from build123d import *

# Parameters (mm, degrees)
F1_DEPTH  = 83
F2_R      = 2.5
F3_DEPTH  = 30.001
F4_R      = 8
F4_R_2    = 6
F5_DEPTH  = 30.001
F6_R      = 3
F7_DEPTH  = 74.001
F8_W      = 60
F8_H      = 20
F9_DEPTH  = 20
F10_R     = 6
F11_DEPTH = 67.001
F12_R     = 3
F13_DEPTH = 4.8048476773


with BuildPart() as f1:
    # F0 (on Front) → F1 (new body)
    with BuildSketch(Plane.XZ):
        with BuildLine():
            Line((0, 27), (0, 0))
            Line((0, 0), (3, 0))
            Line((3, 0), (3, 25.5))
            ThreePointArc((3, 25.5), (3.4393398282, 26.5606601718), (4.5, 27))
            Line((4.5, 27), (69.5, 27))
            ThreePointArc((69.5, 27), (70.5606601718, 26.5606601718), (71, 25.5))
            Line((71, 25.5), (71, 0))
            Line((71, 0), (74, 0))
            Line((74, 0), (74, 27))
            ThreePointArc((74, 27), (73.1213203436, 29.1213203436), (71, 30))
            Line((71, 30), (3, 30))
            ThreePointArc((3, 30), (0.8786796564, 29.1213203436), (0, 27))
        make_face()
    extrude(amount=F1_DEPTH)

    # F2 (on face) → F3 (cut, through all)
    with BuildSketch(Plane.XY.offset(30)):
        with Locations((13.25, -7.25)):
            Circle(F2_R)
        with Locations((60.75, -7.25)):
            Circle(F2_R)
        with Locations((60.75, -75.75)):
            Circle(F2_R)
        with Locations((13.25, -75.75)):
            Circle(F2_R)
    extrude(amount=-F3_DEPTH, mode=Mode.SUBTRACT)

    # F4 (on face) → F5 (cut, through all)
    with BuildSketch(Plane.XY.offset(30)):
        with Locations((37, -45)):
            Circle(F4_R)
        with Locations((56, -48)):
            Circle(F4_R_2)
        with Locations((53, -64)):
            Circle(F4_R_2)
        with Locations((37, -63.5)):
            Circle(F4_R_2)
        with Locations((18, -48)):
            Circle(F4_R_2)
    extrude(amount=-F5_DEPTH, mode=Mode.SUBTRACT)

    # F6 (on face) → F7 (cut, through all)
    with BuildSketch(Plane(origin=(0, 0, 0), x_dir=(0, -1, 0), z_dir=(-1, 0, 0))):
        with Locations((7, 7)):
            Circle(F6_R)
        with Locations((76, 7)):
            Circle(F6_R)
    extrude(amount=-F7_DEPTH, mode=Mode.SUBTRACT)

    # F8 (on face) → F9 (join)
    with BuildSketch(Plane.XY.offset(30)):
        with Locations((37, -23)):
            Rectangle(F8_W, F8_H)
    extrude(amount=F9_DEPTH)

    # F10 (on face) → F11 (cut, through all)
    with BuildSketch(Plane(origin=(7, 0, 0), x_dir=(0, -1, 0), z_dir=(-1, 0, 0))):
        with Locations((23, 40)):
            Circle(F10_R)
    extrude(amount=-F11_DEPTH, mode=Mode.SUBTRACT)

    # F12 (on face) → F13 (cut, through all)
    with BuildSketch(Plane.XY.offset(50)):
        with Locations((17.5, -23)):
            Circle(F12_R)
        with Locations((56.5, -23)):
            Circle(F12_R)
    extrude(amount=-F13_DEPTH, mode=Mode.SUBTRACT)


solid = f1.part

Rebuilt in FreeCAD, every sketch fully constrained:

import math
import FreeCAD as App
import Part
import Sketcher

doc = App.newDocument("Part")
body = doc.addObject("PartDesign::Body", "Body")

sketch1 = doc.addObject("Sketcher::SketchObject", "Sketch")
body.addObject(sketch1)
sketch1.AttachmentSupport = (doc.XZ_Plane, [""])
sketch1.MapMode = "FlatFace"
sketch1.addGeometry([
    Part.LineSegment(App.Vector(0, 27, 0), App.Vector(0, 0, 0)),
    Part.LineSegment(App.Vector(0, 0, 0), App.Vector(3, 0, 0)),
    Part.LineSegment(App.Vector(3, 0, 0), App.Vector(3, 25.5, 0)),
    Part.ArcOfCircle(Part.Circle(App.Vector(4.5, 25.5, 0), App.Vector(0, 0, 1), 1.5), math.radians(90), math.radians(180)),
    Part.LineSegment(App.Vector(4.5, 27, 0), App.Vector(69.5, 27, 0)),
    Part.ArcOfCircle(Part.Circle(App.Vector(69.5, 25.5, 0), App.Vector(0, 0, 1), 1.5), math.radians(0), math.radians(90)),
    Part.LineSegment(App.Vector(71, 25.5, 0), App.Vector(71, 0, 0)),
    Part.LineSegment(App.Vector(71, 0, 0), App.Vector(74, 0, 0)),
    Part.LineSegment(App.Vector(74, 0, 0), App.Vector(74, 27, 0)),
    Part.ArcOfCircle(Part.Circle(App.Vector(71, 27, 0), App.Vector(0, 0, 1), 3), math.radians(0), math.radians(90)),
    Part.LineSegment(App.Vector(71, 30, 0), App.Vector(3, 30, 0)),
    Part.ArcOfCircle(Part.Circle(App.Vector(3, 27, 0), App.Vector(0, 0, 1), 3), math.radians(90), math.radians(180)),
], False)
sketch1.addConstraint([
    Sketcher.Constraint("Coincident", 0, 2, 1, 1),
    Sketcher.Constraint("Coincident", 1, 2, 2, 1),
    Sketcher.Constraint("Tangent", 2, 2, 3, 2),
    Sketcher.Constraint("Tangent", 3, 1, 4, 1),
    Sketcher.Constraint("Tangent", 4, 2, 5, 2),
    Sketcher.Constraint("Tangent", 5, 1, 6, 1),
    Sketcher.Constraint("Coincident", 6, 2, 7, 1),
    Sketcher.Constraint("Coincident", 7, 2, 8, 1),
    Sketcher.Constraint("Tangent", 8, 2, 9, 1),
    Sketcher.Constraint("Tangent", 9, 2, 10, 1),
    Sketcher.Constraint("Tangent", 10, 2, 11, 1),
    Sketcher.Constraint("Tangent", 11, 2, 0, 1),
    Sketcher.Constraint("Vertical", 0),
    Sketcher.Constraint("Horizontal", 1),
    Sketcher.Constraint("Vertical", 2),
    Sketcher.Constraint("Horizontal", 4),
    Sketcher.Constraint("Vertical", 6),
    Sketcher.Constraint("Horizontal", 7),
    Sketcher.Constraint("Vertical", 8),
    Sketcher.Constraint("Horizontal", 10),
    Sketcher.Constraint("Coincident", 0, 2, -1, 1),
    Sketcher.Constraint("Equal", 3, 5),
    Sketcher.Constraint("Equal", 9, 11),
    Sketcher.Constraint("PointOnObject", 6, 2, -1),
    Sketcher.Constraint("Horizontal", 11, 3, 3, 1),
    Sketcher.Constraint("Vertical", 11, 3, 1, 2),
    Sketcher.Constraint("Vertical", 9, 3, 5, 1),
    Sketcher.Constraint("Radius", 9, 3.0),
    Sketcher.Constraint("Radius", 3, 1.5),
    Sketcher.Constraint("DistanceX", 4, 1, 4, 2, 65.0),
    Sketcher.Constraint("DistanceY", 0, 2, 0, 1, 27.0),
])
pad1 = doc.addObject("PartDesign::Pad", "Pad")
body.addObject(pad1)
pad1.Profile = sketch1
pad1.Length = 83

sketch2 = doc.addObject("Sketcher::SketchObject", "Sketch001")
body.addObject(sketch2)
sketch2.AttachmentSupport = (doc.XY_Plane, [""])
sketch2.MapMode = "FlatFace"
sketch2.AttachmentOffset = App.Placement(App.Vector(0, 0, 30), App.Rotation())
sketch2.addGeometry([
    Part.Circle(App.Vector(13.2, -7.2, 0), App.Vector(0, 0, 1), 2.5),
    Part.Circle(App.Vector(60.8, -7.2, 0), App.Vector(0, 0, 1), 2.5),
    Part.Circle(App.Vector(60.8, -75.8, 0), App.Vector(0, 0, 1), 2.5),
    Part.Circle(App.Vector(13.2, -75.8, 0), App.Vector(0, 0, 1), 2.5),
], False)
sketch2.addConstraint([
    Sketcher.Constraint("Equal", 0, 1),
    Sketcher.Constraint("Equal", 1, 2),
    Sketcher.Constraint("Equal", 2, 3),
    Sketcher.Constraint("Horizontal", 0, 3, 1, 3),
    Sketcher.Constraint("Horizontal", 2, 3, 3, 3),
    Sketcher.Constraint("Vertical", 1, 3, 2, 3),
    Sketcher.Constraint("Vertical", 0, 3, 3, 3),
    Sketcher.Constraint("Diameter", 0, 5.0),
    Sketcher.Constraint("DistanceX", 0, 3, 1, 3, 47.5),
    Sketcher.Constraint("DistanceY", 2, 3, 1, 3, 68.5),
    Sketcher.Constraint("DistanceX", -1, 1, 0, 3, 13.25),
    Sketcher.Constraint("DistanceY", 0, 3, -1, 1, 7.25),
])
pocket1 = doc.addObject("PartDesign::Pocket", "Pocket")
body.addObject(pocket1)
pocket1.Profile = sketch2
pocket1.Type = "ThroughAll"

sketch3 = doc.addObject("Sketcher::SketchObject", "Sketch002")
body.addObject(sketch3)
sketch3.AttachmentSupport = (doc.XY_Plane, [""])
sketch3.MapMode = "FlatFace"
sketch3.AttachmentOffset = App.Placement(App.Vector(0, 0, 30), App.Rotation())
sketch3.addGeometry([
    Part.Circle(App.Vector(37, -45, 0), App.Vector(0, 0, 1), 8),
    Part.Circle(App.Vector(56, -48, 0), App.Vector(0, 0, 1), 6),
    Part.Circle(App.Vector(53, -64, 0), App.Vector(0, 0, 1), 6),
    Part.Circle(App.Vector(37, -64, 0), App.Vector(0, 0, 1), 6),
    Part.Circle(App.Vector(18, -48, 0), App.Vector(0, 0, 1), 6),
], False)
sketch3.addConstraint([
    Sketcher.Constraint("Equal", 1, 2),
    Sketcher.Constraint("Equal", 2, 3),
    Sketcher.Constraint("Equal", 3, 4),
    Sketcher.Constraint("Horizontal", 1, 3, 4, 3),
    Sketcher.Constraint("Vertical", 0, 3, 3, 3),
    Sketcher.Constraint("Diameter", 0, 16.0),
    Sketcher.Constraint("Diameter", 1, 12.0),
    Sketcher.Constraint("DistanceX", -1, 1, 0, 3, 37.0),
    Sketcher.Constraint("DistanceY", 0, 3, -1, 1, 45.0),
    Sketcher.Constraint("DistanceX", -1, 1, 1, 3, 56.0),
    Sketcher.Constraint("DistanceY", 1, 3, -1, 1, 48.0),
    Sketcher.Constraint("DistanceX", -1, 1, 2, 3, 53.0),
    Sketcher.Constraint("DistanceY", 2, 3, -1, 1, 64.0),
    Sketcher.Constraint("DistanceX", -1, 1, 4, 3, 18.0),
    Sketcher.Constraint("DistanceY", 3, 3, -1, 1, 63.5),
])
pocket2 = doc.addObject("PartDesign::Pocket", "Pocket001")
body.addObject(pocket2)
pocket2.Profile = sketch3
pocket2.Type = "ThroughAll"

sketch4 = doc.addObject("Sketcher::SketchObject", "Sketch003")
body.addObject(sketch4)
sketch4.AttachmentSupport = (doc.YZ_Plane, [""])
sketch4.MapMode = "FlatFace"
sketch4.addGeometry([
    Part.Circle(App.Vector(-7, 7, 0), App.Vector(0, 0, 1), 3),
    Part.Circle(App.Vector(-76, 7, 0), App.Vector(0, 0, 1), 3),
], False)
sketch4.addConstraint([
    Sketcher.Constraint("Equal", 0, 1),
    Sketcher.Constraint("Horizontal", 0, 3, 1, 3),
    Sketcher.Constraint("Diameter", 0, 6.0),
    Sketcher.Constraint("DistanceX", 0, 3, -1, 1, 7.0),
    Sketcher.Constraint("DistanceY", -1, 1, 0, 3, 7.0),
    Sketcher.Constraint("DistanceX", 1, 3, -1, 1, 76.0),
])
pocket3 = doc.addObject("PartDesign::Pocket", "Pocket002")
body.addObject(pocket3)
pocket3.Profile = sketch4
pocket3.Type = "ThroughAll"
pocket3.Reversed = True

sketch5 = doc.addObject("Sketcher::SketchObject", "Sketch004")
body.addObject(sketch5)
sketch5.AttachmentSupport = (doc.XY_Plane, [""])
sketch5.MapMode = "FlatFace"
sketch5.AttachmentOffset = App.Placement(App.Vector(0, 0, 30), App.Rotation())
sketch5.addGeometry([
    Part.LineSegment(App.Vector(7, -13, 0), App.Vector(7, -33, 0)),
    Part.LineSegment(App.Vector(7, -33, 0), App.Vector(67, -33, 0)),
    Part.LineSegment(App.Vector(67, -33, 0), App.Vector(67, -13, 0)),
    Part.LineSegment(App.Vector(67, -13, 0), App.Vector(7, -13, 0)),
], False)
sketch5.addConstraint([
    Sketcher.Constraint("Coincident", 0, 2, 1, 1),
    Sketcher.Constraint("Coincident", 1, 2, 2, 1),
    Sketcher.Constraint("Coincident", 2, 2, 3, 1),
    Sketcher.Constraint("Coincident", 3, 2, 0, 1),
    Sketcher.Constraint("Vertical", 0),
    Sketcher.Constraint("Horizontal", 1),
    Sketcher.Constraint("Vertical", 2),
    Sketcher.Constraint("Horizontal", 3),
    Sketcher.Constraint("DistanceX", 1, 1, 1, 2, 60.0),
    Sketcher.Constraint("DistanceY", 0, 2, 0, 1, 20.0),
    Sketcher.Constraint("DistanceX", -1, 1, 0, 2, 7.0),
    Sketcher.Constraint("DistanceY", 0, 2, -1, 1, 33.0),
])
pad2 = doc.addObject("PartDesign::Pad", "Pad001")
body.addObject(pad2)
pad2.Profile = sketch5
pad2.Length = 20

sketch6 = doc.addObject("Sketcher::SketchObject", "Sketch005")
body.addObject(sketch6)
sketch6.AttachmentSupport = (doc.YZ_Plane, [""])
sketch6.MapMode = "FlatFace"
sketch6.AttachmentOffset = App.Placement(App.Vector(0, 0, 7), App.Rotation())
sketch6.addGeometry(Part.Circle(App.Vector(-23, 40, 0), App.Vector(0, 0, 1), 6), False)
sketch6.addConstraint([
    Sketcher.Constraint("Diameter", 0, 12.0),
    Sketcher.Constraint("DistanceX", 0, 3, -1, 1, 23.0),
    Sketcher.Constraint("DistanceY", -1, 1, 0, 3, 40.0),
])
pocket4 = doc.addObject("PartDesign::Pocket", "Pocket003")
body.addObject(pocket4)
pocket4.Profile = sketch6
pocket4.Type = "ThroughAll"
pocket4.Reversed = True

sketch7 = doc.addObject("Sketcher::SketchObject", "Sketch006")
body.addObject(sketch7)
sketch7.AttachmentSupport = (doc.XY_Plane, [""])
sketch7.MapMode = "FlatFace"
sketch7.AttachmentOffset = App.Placement(App.Vector(0, 0, 50), App.Rotation())
sketch7.addGeometry([
    Part.Circle(App.Vector(17.5, -23, 0), App.Vector(0, 0, 1), 3),
    Part.Circle(App.Vector(56.5, -23, 0), App.Vector(0, 0, 1), 3),
], False)
sketch7.addConstraint([
    Sketcher.Constraint("Equal", 0, 1),
    Sketcher.Constraint("Horizontal", 0, 3, 1, 3),
    Sketcher.Constraint("Diameter", 0, 6.0),
    Sketcher.Constraint("DistanceY", 0, 3, -1, 1, 23.0),
    Sketcher.Constraint("DistanceX", 0, 3, 1, 3, 39.0),
    Sketcher.Constraint("DistanceX", -1, 1, 0, 3, 17.5),
])
pocket5 = doc.addObject("PartDesign::Pocket", "Pocket004")
body.addObject(pocket5)
pocket5.Profile = sketch7
pocket5.Length = 4.804848

doc.recompute()
